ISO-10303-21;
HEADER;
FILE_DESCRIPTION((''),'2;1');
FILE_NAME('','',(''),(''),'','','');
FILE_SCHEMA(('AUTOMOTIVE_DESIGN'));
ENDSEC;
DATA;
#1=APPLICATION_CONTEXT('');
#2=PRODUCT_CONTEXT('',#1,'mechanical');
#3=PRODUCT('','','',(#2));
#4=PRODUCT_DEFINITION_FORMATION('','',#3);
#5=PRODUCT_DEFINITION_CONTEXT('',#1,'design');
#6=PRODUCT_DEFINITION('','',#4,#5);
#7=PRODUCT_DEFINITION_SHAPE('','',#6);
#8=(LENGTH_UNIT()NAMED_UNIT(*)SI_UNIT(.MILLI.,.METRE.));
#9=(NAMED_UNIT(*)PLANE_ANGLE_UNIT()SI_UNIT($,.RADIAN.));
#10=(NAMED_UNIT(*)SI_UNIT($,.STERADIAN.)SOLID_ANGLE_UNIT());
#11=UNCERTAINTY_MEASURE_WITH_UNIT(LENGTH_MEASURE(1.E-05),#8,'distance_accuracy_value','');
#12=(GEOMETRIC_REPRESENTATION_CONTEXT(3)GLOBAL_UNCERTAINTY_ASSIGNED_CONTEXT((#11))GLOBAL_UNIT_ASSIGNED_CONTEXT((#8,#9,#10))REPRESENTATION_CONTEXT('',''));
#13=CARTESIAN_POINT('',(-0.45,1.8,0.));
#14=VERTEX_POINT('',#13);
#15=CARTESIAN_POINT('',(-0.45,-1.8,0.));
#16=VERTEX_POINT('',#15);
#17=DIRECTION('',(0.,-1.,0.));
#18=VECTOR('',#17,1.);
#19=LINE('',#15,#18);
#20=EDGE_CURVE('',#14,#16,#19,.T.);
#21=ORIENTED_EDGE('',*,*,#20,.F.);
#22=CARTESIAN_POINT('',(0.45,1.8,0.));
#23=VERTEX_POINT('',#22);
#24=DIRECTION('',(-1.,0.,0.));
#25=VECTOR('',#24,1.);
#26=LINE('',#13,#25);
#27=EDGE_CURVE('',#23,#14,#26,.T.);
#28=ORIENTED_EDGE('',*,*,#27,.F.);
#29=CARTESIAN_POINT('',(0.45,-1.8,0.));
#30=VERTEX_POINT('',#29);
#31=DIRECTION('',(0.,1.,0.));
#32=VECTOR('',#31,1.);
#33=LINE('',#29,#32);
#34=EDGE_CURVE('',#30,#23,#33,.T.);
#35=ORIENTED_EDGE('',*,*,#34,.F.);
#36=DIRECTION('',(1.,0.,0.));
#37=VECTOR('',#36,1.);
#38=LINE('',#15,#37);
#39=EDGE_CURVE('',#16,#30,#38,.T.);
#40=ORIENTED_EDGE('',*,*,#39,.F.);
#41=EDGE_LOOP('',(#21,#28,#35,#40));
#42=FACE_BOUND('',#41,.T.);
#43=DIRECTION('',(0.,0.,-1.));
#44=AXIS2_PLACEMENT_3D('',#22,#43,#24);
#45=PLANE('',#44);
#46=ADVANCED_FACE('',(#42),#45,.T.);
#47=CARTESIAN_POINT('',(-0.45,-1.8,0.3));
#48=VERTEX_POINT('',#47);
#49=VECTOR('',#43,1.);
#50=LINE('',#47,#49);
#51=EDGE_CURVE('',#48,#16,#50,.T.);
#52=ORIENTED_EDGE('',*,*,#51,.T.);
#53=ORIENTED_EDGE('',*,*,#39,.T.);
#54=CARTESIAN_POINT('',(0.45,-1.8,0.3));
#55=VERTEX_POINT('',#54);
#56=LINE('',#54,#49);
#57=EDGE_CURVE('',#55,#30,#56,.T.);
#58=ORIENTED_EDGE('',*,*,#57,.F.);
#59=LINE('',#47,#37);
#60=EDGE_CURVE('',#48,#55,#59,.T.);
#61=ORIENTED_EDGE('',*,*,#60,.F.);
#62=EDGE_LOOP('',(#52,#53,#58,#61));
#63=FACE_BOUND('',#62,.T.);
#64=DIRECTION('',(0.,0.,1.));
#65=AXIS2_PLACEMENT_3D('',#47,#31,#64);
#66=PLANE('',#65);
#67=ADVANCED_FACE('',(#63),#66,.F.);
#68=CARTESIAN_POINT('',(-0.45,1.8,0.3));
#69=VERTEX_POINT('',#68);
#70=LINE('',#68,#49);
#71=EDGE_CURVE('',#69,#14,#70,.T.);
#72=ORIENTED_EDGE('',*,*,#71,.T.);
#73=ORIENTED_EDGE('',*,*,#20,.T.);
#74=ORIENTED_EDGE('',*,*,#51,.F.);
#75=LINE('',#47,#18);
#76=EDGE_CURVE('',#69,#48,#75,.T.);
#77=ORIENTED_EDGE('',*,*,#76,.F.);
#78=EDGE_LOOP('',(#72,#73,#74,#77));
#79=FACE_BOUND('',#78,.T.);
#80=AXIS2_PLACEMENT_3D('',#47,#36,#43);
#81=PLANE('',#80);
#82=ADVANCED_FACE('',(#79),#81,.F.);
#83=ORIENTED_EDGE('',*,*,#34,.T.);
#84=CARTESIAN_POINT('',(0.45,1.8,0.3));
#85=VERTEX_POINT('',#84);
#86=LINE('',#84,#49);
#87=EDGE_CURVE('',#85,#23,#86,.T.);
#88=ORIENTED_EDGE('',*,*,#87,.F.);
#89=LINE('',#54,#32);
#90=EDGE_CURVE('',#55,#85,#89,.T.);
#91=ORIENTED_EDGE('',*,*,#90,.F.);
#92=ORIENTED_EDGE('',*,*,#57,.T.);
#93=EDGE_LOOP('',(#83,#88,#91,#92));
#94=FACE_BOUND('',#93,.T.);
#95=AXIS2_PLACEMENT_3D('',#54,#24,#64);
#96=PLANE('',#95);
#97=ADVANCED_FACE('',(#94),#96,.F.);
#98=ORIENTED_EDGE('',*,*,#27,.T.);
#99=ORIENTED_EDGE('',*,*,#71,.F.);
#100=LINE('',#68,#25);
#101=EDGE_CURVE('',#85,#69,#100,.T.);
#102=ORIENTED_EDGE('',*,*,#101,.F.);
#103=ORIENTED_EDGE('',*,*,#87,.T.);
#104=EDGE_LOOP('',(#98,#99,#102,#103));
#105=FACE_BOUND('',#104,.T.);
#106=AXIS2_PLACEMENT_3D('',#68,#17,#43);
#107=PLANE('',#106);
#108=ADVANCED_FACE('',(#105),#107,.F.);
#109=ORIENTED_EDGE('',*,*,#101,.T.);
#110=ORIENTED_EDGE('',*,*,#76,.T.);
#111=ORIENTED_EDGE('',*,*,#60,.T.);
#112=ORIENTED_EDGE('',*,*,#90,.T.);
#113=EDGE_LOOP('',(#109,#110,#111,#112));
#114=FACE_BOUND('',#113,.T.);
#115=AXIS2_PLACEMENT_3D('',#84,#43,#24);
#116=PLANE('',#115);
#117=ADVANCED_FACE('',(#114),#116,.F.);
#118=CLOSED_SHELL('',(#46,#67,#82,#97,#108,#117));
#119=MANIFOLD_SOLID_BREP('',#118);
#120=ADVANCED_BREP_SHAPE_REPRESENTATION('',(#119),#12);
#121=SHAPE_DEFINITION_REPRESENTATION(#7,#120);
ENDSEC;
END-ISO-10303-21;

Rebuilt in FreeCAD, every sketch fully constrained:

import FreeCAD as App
import Part
import Sketcher


def add_polygon(sketch, points):
    """Adds a closed chain of lines whose ends are joined by coincident constraints."""
    first, n = sketch.GeometryCount, len(points)
    for a, b in zip(points, points[1:] + points[:1]):
        sketch.addGeometry(Part.LineSegment(App.Vector(*a, 0), App.Vector(*b, 0)), False)
    for i in range(n):
        sketch.addConstraint(Sketcher.Constraint("Coincident", first + i, 2, first + (i + 1) % n, 1))

doc = App.newDocument("Part")
body = doc.addObject("PartDesign::Body", "Body")

# Sketch on XY plane
sketch1 = body.newObject("Sketcher::SketchObject", "Sketch")
sketch1.AttachmentSupport = (doc.getObject("XY_Plane"), [""])
sketch1.MapMode = "FlatFace"
add_polygon(sketch1, [(-0.5, 1.8), (-0.5, -1.8), (0.5, -1.8), (0.5, 1.8)])  # lines 0-3
sketch1.addConstraint(Sketcher.Constraint("Vertical", 0))
sketch1.addConstraint(Sketcher.Constraint("Horizontal", 1))
sketch1.addConstraint(Sketcher.Constraint("Vertical", 2))
sketch1.addConstraint(Sketcher.Constraint("Horizontal", 3))
sketch1.addConstraint(Sketcher.Constraint("Symmetric", 0, 2, 2, 2, -1, 1))
sketch1.addConstraint(Sketcher.Constraint("DistanceX", 1, 1, 1, 2, 0.9))
sketch1.addConstraint(Sketcher.Constraint("DistanceY", 0, 2, 0, 1, 3.6))
pad1 = body.newObject("PartDesign::Pad", "Pad")
pad1.Profile = sketch1
pad1.Length = 0.3

doc.recompute()
